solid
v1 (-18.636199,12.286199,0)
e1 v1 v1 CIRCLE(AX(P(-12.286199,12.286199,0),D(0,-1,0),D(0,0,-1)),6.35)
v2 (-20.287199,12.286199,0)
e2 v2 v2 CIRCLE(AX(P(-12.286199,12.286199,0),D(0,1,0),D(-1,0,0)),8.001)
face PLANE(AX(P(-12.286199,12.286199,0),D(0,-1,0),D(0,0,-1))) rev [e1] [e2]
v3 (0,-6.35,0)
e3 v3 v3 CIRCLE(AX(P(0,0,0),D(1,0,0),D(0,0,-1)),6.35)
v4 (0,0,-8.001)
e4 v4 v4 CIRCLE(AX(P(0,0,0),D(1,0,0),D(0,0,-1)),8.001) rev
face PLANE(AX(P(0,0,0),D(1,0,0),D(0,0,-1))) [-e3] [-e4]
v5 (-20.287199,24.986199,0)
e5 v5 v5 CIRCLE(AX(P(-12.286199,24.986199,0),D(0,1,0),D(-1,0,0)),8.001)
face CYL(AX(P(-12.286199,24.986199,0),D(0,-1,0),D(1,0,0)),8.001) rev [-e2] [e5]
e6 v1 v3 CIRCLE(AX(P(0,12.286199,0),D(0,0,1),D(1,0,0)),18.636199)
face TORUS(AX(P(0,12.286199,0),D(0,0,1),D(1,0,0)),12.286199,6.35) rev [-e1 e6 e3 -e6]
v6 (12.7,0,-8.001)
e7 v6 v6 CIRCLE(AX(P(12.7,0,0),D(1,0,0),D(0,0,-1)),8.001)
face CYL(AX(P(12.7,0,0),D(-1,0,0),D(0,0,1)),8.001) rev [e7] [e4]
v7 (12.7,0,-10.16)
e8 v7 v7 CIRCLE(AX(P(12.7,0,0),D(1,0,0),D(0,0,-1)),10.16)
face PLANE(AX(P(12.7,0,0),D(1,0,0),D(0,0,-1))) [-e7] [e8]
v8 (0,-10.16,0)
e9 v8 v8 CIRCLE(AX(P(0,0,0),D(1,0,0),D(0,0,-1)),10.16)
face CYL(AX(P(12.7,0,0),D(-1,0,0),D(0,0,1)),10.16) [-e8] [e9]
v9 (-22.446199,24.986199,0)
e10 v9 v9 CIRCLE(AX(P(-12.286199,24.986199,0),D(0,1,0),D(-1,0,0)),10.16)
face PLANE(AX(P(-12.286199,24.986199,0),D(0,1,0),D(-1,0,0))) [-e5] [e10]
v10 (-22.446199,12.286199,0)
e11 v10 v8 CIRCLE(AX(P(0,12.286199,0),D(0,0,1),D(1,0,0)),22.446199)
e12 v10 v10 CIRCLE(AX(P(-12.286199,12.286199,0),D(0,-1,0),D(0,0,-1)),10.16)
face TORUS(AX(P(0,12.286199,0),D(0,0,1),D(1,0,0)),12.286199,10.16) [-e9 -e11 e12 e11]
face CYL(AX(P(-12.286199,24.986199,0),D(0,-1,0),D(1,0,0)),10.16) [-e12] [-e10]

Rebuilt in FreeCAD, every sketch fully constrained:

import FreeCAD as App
import Part
import Sketcher
from FreeCAD import Vector
Q = App.Units.Quantity

doc = App.newDocument("Part")
body = doc.addObject("PartDesign::Body", "Body")

sketch1 = body.newObject("Sketcher::SketchObject", "Sketch")
sketch1.AttachmentSupport = (doc.getObject("YZ_Plane"), [""])
sketch1.MapMode = "FlatFace"
sketch1.addGeometry([
    Part.Circle(Vector(0, 0, 0), Vector(0, 0, 1), 10.16),
    Part.Circle(Vector(0, 0, 0), Vector(0, 0, 1), 6.35),
], False)
sketch1.addGeometry(Part.LineSegment(Vector(12.286199, 0, 0), Vector(12.286199, -10, 0)), True)
sketch1.addConstraint([
    Sketcher.Constraint("Vertical", 2),
    Sketcher.Constraint("Coincident", 0, 3, -1, 1),
    Sketcher.Constraint("Coincident", 1, 3, -1, 1),
    Sketcher.Constraint("PointOnObject", 2, 1, -1),
    Sketcher.Constraint("Diameter", 0, Q("0.8 in")),
    Sketcher.Constraint("Diameter", 1, Q("0.5 in")),
    Sketcher.Constraint("DistanceY", 2, 2, 2, 1, 10.0),
    Sketcher.Constraint("DistanceX", -1, 1, 2, 1, 12.286199),
])
revolution = body.newObject("PartDesign::Revolution", "Revolution")
revolution.Profile = sketch1
revolution.ReferenceAxis = (sketch1, ["Axis0"])
revolution.Angle = 90

sketch2 = body.newObject("Sketcher::SketchObject", "Sketch001")
sketch2.AttachmentSupport = (doc.getObject("XZ_Plane"), [""])
sketch2.MapMode = "FlatFace"
sketch2.AttachmentOffset = App.Placement(Vector(0, 0, -12.286199), App.Rotation())
sketch2.addGeometry([
    Part.Circle(Vector(-12.286199, 0, 0), Vector(0, 0, 1), 10.16),
    Part.Circle(Vector(-12.286199, 0, 0), Vector(0, 0, 1), 8.001),
], False)
sketch2.addConstraint([
    Sketcher.Constraint("Coincident", 1, 3, 0, 3),
    Sketcher.Constraint("PointOnObject", 0, 3, -1),
    Sketcher.Constraint("Diameter", 0, Q("0.8 in")),
    Sketcher.Constraint("Diameter", 1, Q("0.63 in")),
    Sketcher.Constraint("DistanceX", 0, 3, -1, 1, 12.286199),
])
pad1 = body.newObject("PartDesign::Pad", "Pad")
pad1.Profile = sketch2
pad1.Length = Q("0.5 in")
pad1.Reversed = True

sketch3 = body.newObject("Sketcher::SketchObject", "Sketch002")
sketch3.AttachmentSupport = (doc.getObject("YZ_Plane"), [""])
sketch3.MapMode = "FlatFace"
sketch3.addGeometry([
    Part.Circle(Vector(0, 0, 0), Vector(0, 0, 1), 10.16),
    Part.Circle(Vector(0, 0, 0), Vector(0, 0, 1), 8.001),
], False)
sketch3.addConstraint([
    Sketcher.Constraint("Coincident", 0, 3, -1, 1),
    Sketcher.Constraint("Coincident", 1, 3, -1, 1),
    Sketcher.Constraint("Diameter", 0, Q("0.8 in")),
    Sketcher.Constraint("Diameter", 1, Q("0.63 in")),
])
pad2 = body.newObject("PartDesign::Pad", "Pad001")
pad2.Profile = sketch3
pad2.Length = Q("0.5 in")

doc.recompute()
